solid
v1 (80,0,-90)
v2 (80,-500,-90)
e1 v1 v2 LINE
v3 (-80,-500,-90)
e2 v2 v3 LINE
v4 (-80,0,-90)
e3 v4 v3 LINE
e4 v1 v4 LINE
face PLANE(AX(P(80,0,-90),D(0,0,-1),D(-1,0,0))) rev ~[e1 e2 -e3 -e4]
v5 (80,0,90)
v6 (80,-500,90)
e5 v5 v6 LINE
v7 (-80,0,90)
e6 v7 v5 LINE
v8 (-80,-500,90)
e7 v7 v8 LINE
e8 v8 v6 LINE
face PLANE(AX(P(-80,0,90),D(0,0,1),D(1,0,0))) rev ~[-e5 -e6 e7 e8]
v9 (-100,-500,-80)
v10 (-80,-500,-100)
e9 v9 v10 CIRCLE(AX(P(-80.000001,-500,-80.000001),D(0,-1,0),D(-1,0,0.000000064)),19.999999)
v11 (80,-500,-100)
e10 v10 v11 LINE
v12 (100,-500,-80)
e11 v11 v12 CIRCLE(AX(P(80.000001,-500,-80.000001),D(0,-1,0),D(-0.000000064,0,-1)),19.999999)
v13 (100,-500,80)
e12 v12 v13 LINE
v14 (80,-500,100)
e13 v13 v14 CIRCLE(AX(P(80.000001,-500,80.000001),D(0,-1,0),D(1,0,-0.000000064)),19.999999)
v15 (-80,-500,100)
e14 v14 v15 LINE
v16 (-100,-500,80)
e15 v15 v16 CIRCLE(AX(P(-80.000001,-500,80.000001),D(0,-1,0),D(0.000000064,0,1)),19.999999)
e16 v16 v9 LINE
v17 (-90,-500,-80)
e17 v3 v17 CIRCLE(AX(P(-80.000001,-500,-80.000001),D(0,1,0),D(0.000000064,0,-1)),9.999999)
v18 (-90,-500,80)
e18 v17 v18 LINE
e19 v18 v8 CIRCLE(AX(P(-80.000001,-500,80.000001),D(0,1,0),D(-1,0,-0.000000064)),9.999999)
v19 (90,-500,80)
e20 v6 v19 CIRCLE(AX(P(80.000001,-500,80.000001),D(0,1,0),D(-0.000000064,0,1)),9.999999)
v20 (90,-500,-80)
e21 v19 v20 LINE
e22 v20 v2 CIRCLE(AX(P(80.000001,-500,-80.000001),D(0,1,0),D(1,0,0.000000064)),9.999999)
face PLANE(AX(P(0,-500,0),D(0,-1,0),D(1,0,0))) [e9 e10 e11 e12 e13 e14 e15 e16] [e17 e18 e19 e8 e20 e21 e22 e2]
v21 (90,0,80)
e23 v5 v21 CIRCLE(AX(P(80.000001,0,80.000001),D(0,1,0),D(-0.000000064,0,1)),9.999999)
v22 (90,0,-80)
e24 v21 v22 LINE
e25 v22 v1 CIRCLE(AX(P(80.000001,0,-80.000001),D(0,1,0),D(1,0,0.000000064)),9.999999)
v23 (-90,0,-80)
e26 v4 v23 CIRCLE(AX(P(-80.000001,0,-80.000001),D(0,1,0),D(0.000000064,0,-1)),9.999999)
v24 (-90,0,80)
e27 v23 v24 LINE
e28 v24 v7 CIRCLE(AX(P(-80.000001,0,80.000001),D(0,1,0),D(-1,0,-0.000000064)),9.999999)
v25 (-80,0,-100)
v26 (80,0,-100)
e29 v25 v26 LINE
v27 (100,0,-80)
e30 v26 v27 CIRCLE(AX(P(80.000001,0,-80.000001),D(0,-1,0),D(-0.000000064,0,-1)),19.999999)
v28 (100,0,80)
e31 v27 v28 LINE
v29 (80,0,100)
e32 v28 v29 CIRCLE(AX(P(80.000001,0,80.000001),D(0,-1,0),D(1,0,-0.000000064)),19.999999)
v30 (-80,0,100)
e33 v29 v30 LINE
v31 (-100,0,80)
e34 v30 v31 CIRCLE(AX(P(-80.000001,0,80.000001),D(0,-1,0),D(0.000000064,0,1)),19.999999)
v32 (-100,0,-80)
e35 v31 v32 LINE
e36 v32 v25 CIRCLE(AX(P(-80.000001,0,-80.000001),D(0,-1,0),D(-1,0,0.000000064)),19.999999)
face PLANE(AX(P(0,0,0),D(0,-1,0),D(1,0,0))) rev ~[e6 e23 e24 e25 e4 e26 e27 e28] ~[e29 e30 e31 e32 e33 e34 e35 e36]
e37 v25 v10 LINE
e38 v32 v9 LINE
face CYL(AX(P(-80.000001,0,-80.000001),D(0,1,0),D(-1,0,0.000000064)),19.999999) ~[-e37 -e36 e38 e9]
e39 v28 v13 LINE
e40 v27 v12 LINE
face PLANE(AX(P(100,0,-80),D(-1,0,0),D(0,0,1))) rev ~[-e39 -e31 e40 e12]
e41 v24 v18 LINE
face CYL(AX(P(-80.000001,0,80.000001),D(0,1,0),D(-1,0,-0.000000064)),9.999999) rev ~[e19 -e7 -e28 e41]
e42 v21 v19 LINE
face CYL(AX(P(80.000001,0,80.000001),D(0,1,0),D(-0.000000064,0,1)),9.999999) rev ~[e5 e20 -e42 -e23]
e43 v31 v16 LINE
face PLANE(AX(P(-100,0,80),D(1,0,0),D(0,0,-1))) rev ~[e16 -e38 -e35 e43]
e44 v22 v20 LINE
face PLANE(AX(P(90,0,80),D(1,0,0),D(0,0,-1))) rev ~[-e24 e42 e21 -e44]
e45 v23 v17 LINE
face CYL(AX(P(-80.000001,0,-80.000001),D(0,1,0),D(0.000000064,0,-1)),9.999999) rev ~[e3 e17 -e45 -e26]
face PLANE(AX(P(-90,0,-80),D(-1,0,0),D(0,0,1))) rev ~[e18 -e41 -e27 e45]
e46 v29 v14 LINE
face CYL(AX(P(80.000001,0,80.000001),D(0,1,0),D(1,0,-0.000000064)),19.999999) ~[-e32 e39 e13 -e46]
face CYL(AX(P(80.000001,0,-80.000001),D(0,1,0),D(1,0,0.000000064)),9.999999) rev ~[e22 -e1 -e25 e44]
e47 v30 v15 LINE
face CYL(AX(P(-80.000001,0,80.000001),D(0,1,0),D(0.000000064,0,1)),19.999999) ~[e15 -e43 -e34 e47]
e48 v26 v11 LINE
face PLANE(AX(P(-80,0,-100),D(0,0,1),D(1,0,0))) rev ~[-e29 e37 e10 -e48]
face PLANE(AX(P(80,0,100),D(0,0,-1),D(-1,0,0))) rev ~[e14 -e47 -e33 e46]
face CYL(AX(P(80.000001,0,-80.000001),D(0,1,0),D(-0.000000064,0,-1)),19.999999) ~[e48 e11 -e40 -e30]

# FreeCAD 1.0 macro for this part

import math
import FreeCAD as App
import Part
import Sketcher

V = App.Vector

doc = App.newDocument("Part")
params = doc.addObject("Spreadsheet::Sheet", "Params")
for row, (alias, value) in enumerate([
    ("sketch1_radius", "19.999999 mm"),
    ("sketch1_radius2", "9.999999 mm"),
    ("sketch1_width", "160 mm"),
    ("pad1_length", "500 mm"),
], start=1):
    params.set(f"A{row}", alias)
    params.set(f"B{row}", "=" + value)
    params.setAlias(f"B{row}", alias)

body = doc.addObject("PartDesign::Body", "Body")

# Sketch on XZ plane
sketch1 = body.newObject("Sketcher::SketchObject", "Sketch")
sketch1.AttachmentSupport = (doc.getObject("XZ_Plane"), [""])
sketch1.MapMode = "FlatFace"
sketch1.addGeometry([
    Part.ArcOfCircle(Part.Circle(V(80.000001, 80.000001, 0), V(0, 0, 1), 19.999999), math.radians(-0.000004), math.radians(90.000004)),  # 0
    Part.LineSegment(V(80, 100, 0), V(-80, 100, 0)),  # 1
    Part.ArcOfCircle(Part.Circle(V(-80.000001, 80.000001, 0), V(0, 0, 1), 19.999999), math.radians(89.999996), math.radians(180.000004)),  # 2
    Part.LineSegment(V(-100, 80, 0), V(-100, -80, 0)),  # 3
    Part.ArcOfCircle(Part.Circle(V(-80.000001, -80.000001, 0), V(0, 0, 1), 19.999999), math.radians(179.999996), math.radians(270.000004)),  # 4
    Part.LineSegment(V(-80, -100, 0), V(80, -100, 0)),  # 5
    Part.ArcOfCircle(Part.Circle(V(80.000001, -80.000001, 0), V(0, 0, 1), 19.999999), math.radians(-90.000004), math.radians(0.000004)),  # 6
    Part.LineSegment(V(100, -80, 0), V(100, 80, 0)),  # 7
    Part.ArcOfCircle(Part.Circle(V(-80.000001, 80.000001, 0), V(0, 0, 1), 9.999999), math.radians(89.999996), math.radians(180.000004)),  # 8
    Part.LineSegment(V(-80, 90, 0), V(80, 90, 0)),  # 9
    Part.ArcOfCircle(Part.Circle(V(80.000001, 80.000001, 0), V(0, 0, 1), 9.999999), math.radians(-0.000004), math.radians(90.000004)),  # 10
    Part.LineSegment(V(90, 80, 0), V(90, -80, 0)),  # 11
    Part.ArcOfCircle(Part.Circle(V(80.000001, -80.000001, 0), V(0, 0, 1), 9.999999), math.radians(-90.000004), math.radians(0.000004)),  # 12
    Part.LineSegment(V(80, -90, 0), V(-80, -90, 0)),  # 13
    Part.ArcOfCircle(Part.Circle(V(-80.000001, -80.000001, 0), V(0, 0, 1), 9.999999), math.radians(179.999996), math.radians(270.000004)),  # 14
    Part.LineSegment(V(-90, -80, 0), V(-90, 80, 0)),  # 15
], False)
sketch1.addConstraint([
    Sketcher.Constraint("Tangent", 0, 2, 1, 1),
    Sketcher.Constraint("Tangent", 1, 2, 2, 1),
    Sketcher.Constraint("Tangent", 2, 2, 3, 1),
    Sketcher.Constraint("Tangent", 3, 2, 4, 1),
    Sketcher.Constraint("Tangent", 4, 2, 5, 1),
    Sketcher.Constraint("Tangent", 5, 2, 6, 1),
    Sketcher.Constraint("Tangent", 6, 2, 7, 1),
    Sketcher.Constraint("Tangent", 7, 2, 0, 1),
    Sketcher.Constraint("Tangent", 8, 1, 9, 1),
    Sketcher.Constraint("Tangent", 9, 2, 10, 2),
    Sketcher.Constraint("Tangent", 10, 1, 11, 1),
    Sketcher.Constraint("Tangent", 11, 2, 12, 2),
    Sketcher.Constraint("Tangent", 12, 1, 13, 1),
    Sketcher.Constraint("Tangent", 13, 2, 14, 2),
    Sketcher.Constraint("Tangent", 14, 1, 15, 1),
    Sketcher.Constraint("Tangent", 15, 2, 8, 2),
    Sketcher.Constraint("Horizontal", 1),
    Sketcher.Constraint("Vertical", 3),
    Sketcher.Constraint("Horizontal", 5),
    Sketcher.Constraint("Vertical", 7),
    Sketcher.Constraint("Horizontal", 9),
    Sketcher.Constraint("Vertical", 11),
    Sketcher.Constraint("Horizontal", 13),
    Sketcher.Constraint("Vertical", 15),
    Sketcher.Constraint("Coincident", 8, 3, 2, 3),
    Sketcher.Constraint("Coincident", 10, 3, 0, 3),
    Sketcher.Constraint("Coincident", 12, 3, 6, 3),
    Sketcher.Constraint("Equal", 0, 2),
    Sketcher.Constraint("Equal", 2, 4),
    Sketcher.Constraint("Equal", 4, 6),
    Sketcher.Constraint("Equal", 12, 14),
    Sketcher.Constraint("Symmetric", 0, 3, 4, 3, -1, 1),
    Sketcher.Constraint("Equal", 13, 3),
    Sketcher.Constraint("Radius", 0, 19.999999),
    Sketcher.Constraint("Radius", 8, 9.999999),
    Sketcher.Constraint("DistanceX", 1, 2, 1, 1, 160.0),
])
sketch1.setExpression("Constraints[33]", "Params.sketch1_radius")
sketch1.setExpression("Constraints[34]", "Params.sketch1_radius2")
sketch1.setExpression("Constraints[35]", "Params.sketch1_width")
pad1 = body.newObject("PartDesign::Pad", "Pad")
pad1.Profile = sketch1
pad1.setExpression("Length", "Params.pad1_length")

doc.recompute()
